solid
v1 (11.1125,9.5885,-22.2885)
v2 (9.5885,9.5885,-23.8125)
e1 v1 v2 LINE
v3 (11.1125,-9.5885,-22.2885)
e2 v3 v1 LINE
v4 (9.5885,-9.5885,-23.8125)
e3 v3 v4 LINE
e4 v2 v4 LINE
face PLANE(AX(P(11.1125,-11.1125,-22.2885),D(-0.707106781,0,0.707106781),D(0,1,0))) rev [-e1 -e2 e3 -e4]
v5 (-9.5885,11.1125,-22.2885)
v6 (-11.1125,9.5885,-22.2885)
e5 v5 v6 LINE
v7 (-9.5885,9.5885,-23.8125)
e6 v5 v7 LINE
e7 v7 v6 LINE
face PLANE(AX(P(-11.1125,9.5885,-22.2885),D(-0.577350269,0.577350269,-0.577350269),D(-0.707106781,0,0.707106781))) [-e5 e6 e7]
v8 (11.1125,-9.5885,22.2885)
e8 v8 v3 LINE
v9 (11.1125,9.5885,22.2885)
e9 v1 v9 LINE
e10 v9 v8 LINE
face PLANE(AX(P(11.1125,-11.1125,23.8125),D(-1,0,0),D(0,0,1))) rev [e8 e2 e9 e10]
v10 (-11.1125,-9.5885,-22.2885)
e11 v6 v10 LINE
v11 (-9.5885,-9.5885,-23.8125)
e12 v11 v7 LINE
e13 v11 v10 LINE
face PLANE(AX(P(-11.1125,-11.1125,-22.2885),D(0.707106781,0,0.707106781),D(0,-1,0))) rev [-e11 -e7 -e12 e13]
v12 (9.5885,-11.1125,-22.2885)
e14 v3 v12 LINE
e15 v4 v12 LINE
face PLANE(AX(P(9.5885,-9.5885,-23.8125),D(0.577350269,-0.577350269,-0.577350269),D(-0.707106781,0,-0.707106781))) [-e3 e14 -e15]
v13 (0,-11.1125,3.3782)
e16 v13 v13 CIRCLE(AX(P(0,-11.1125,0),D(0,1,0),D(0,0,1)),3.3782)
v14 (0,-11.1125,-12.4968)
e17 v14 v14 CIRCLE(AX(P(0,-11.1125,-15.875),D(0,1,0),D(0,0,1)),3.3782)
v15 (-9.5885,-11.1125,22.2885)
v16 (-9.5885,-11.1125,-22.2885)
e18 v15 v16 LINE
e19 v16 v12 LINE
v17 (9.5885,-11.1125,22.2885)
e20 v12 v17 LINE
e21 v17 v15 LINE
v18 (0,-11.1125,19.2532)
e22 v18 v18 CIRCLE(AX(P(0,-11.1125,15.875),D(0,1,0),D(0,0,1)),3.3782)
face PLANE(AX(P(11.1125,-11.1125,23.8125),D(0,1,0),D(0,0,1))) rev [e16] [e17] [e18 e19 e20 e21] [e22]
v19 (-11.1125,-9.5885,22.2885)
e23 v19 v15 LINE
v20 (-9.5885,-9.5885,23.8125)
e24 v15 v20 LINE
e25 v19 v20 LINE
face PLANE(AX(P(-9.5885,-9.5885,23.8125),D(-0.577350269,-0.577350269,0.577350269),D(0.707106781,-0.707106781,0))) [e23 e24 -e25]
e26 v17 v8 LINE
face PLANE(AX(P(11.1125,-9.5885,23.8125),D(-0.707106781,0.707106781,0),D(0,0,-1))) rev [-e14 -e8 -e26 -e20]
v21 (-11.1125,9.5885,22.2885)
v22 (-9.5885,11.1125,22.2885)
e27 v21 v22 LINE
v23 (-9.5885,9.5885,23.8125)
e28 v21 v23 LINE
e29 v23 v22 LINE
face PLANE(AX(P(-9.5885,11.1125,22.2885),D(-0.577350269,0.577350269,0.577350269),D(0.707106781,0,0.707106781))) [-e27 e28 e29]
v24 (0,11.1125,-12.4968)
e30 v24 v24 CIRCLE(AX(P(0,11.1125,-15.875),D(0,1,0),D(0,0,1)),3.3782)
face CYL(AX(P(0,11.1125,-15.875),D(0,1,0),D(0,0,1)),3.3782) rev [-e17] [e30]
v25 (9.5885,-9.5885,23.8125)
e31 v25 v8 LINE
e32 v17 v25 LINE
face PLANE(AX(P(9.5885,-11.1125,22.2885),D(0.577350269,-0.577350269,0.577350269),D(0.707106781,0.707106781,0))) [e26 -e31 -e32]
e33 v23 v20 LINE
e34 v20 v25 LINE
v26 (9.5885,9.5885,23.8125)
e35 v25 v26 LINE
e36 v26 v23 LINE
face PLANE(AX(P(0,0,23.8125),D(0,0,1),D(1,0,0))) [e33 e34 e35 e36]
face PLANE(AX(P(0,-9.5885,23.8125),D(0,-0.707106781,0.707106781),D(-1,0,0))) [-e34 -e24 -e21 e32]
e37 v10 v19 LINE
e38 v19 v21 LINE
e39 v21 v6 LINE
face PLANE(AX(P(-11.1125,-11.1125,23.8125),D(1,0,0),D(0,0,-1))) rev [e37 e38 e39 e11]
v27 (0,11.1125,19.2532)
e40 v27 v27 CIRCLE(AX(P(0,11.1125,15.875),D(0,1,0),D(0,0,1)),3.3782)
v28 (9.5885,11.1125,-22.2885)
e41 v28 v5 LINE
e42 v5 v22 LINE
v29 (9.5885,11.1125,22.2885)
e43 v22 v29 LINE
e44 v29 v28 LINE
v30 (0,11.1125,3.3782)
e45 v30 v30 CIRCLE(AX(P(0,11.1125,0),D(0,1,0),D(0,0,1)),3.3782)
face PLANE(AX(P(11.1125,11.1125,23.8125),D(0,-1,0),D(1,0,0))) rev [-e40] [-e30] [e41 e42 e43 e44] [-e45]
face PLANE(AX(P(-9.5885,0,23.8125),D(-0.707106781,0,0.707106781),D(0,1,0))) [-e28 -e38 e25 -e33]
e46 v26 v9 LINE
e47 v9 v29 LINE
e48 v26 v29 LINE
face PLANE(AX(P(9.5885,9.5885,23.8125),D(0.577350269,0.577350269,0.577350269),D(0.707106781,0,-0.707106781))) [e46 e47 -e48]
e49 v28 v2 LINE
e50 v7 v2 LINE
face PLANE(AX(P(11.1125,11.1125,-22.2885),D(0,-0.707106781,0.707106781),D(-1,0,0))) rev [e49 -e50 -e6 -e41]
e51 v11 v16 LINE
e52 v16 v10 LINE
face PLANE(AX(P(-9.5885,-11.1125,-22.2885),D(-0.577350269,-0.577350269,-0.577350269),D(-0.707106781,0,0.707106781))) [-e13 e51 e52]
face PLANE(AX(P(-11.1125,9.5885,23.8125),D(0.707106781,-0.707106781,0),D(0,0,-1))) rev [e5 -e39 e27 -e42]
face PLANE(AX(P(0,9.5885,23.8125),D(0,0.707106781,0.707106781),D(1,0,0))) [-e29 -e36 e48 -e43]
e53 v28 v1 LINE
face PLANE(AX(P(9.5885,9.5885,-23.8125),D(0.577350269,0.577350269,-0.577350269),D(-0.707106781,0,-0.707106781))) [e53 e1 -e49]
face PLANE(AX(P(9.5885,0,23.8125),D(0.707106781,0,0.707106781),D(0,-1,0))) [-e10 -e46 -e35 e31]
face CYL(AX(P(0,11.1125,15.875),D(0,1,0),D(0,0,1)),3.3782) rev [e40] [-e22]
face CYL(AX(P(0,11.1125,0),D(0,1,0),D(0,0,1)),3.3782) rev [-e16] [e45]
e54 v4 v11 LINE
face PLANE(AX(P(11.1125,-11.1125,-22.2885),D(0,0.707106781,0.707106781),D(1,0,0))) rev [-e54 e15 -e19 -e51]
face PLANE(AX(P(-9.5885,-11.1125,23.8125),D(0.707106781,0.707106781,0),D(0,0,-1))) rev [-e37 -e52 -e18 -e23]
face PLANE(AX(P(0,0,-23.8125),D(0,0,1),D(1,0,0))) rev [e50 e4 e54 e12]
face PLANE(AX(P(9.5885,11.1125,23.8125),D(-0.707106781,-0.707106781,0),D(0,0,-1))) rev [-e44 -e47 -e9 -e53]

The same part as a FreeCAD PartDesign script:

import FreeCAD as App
import Part
import Sketcher
from FreeCAD import Vector
Q = App.Units.Quantity


def edges_at(feature, points):
    """Names of the edges that pass closest to the given points."""
    edges = feature.Shape.Edges
    near = lambda p: min(range(len(edges)), key=lambda i: edges[i].distToShape(Part.Vertex(*p))[0])
    return sorted({f"Edge{near(p) + 1}" for p in points})


def add_polygon(sketch, points):
    """Adds a closed chain of lines whose ends are joined by coincident constraints."""
    first, n = sketch.GeometryCount, len(points)
    for a, b in zip(points, points[1:] + points[:1]):
        sketch.addGeometry(Part.LineSegment(App.Vector(*a, 0), App.Vector(*b, 0)), False)
    for i in range(n):
        sketch.addConstraint(Sketcher.Constraint("Coincident", first + i, 2, first + (i + 1) % n, 1))

doc = App.newDocument("Part")
body = doc.addObject("PartDesign::Body", "Body")

# Sketch on XY plane
sketch1 = body.newObject("Sketcher::SketchObject", "Sketch")
sketch1.AttachmentSupport = (doc.getObject("XY_Plane"), [""])
sketch1.MapMode = "FlatFace"
add_polygon(sketch1, [(-11.1125, 11.1125), (-11.1125, -11.1125), (11.1125, -11.1125), (11.1125, 11.1125)])  # lines 0-3
sketch1.addConstraint([
    Sketcher.Constraint("Vertical", 0),
    Sketcher.Constraint("Horizontal", 1),
    Sketcher.Constraint("Vertical", 2),
    Sketcher.Constraint("Horizontal", 3),
    Sketcher.Constraint("Symmetric", 0, 2, 2, 2, -1, 1),
    Sketcher.Constraint("Equal", 3, 0),
    Sketcher.Constraint("DistanceX", 1, 1, 1, 2, Q("0.875 in")),
])
pad1 = body.newObject("PartDesign::Pad", "Pad")
pad1.Profile = sketch1
pad1.Length = Q("1.875 in")
pad1.Midplane = True

# Sketch on XZ plane
sketch2 = body.newObject("Sketcher::SketchObject", "Sketch001")
sketch2.AttachmentSupport = (doc.getObject("XZ_Plane"), [""])
sketch2.MapMode = "FlatFace"
sketch2.AttachmentOffset = App.Placement(Vector(0, 0, -0.4375 * 25.4), App.Rotation())
sketch2.addGeometry([
    Part.Circle(Vector(0, -15.875, 0), Vector(0, 0, 1), 3.3782),
    Part.Circle(Vector(0, 15.875, 0), Vector(0, 0, 1), 3.3782),
    Part.Circle(Vector(0, 0, 0), Vector(0, 0, 1), 3.3782),
], False)
sketch2.addConstraint([
    Sketcher.Constraint("Coincident", 2, 3, -1, 1),
    Sketcher.Constraint("Equal", 0, 1),
    Sketcher.Constraint("Equal", 1, 2),
    Sketcher.Constraint("Symmetric", 0, 3, 1, 3, -1, 1),
    Sketcher.Constraint("PointOnObject", 0, 3, -2),
    Sketcher.Constraint("Diameter", 0, Q("0.266 in")),
    Sketcher.Constraint("DistanceY", 0, 3, 1, 3, Q("1.25 in")),
])
doc.recompute()
hole = body.newObject("PartDesign::Hole", "Hole")
hole.Profile = sketch2
hole.ThreadType = "None"
hole.Diameter = Q("0.266 in")
hole.DepthType = "ThroughAll"
hole.Reversed = True
doc.recompute()

chamfer = body.newObject("PartDesign::Chamfer", "Chamfer")
chamfer.Base = (hole, edges_at(hole, [
    (11.113, 0, 23.812),
    (0, 11.113, 23.812),
    (-11.113, 0, 23.812),
    (0, 11.113, -23.812),
    (11.113, 0, -23.812),
    (0, -11.113, -23.812),
    (-11.113, 0, -23.812),
    (-11.113, 11.113, 0),
    (11.113, 11.113, 0),
    (11.113, -11.113, 0),
    (-11.113, -11.113, 0),
    (0, -11.113, 23.812),
]))
chamfer.Size = Q("0.06 in")

doc.recompute()
